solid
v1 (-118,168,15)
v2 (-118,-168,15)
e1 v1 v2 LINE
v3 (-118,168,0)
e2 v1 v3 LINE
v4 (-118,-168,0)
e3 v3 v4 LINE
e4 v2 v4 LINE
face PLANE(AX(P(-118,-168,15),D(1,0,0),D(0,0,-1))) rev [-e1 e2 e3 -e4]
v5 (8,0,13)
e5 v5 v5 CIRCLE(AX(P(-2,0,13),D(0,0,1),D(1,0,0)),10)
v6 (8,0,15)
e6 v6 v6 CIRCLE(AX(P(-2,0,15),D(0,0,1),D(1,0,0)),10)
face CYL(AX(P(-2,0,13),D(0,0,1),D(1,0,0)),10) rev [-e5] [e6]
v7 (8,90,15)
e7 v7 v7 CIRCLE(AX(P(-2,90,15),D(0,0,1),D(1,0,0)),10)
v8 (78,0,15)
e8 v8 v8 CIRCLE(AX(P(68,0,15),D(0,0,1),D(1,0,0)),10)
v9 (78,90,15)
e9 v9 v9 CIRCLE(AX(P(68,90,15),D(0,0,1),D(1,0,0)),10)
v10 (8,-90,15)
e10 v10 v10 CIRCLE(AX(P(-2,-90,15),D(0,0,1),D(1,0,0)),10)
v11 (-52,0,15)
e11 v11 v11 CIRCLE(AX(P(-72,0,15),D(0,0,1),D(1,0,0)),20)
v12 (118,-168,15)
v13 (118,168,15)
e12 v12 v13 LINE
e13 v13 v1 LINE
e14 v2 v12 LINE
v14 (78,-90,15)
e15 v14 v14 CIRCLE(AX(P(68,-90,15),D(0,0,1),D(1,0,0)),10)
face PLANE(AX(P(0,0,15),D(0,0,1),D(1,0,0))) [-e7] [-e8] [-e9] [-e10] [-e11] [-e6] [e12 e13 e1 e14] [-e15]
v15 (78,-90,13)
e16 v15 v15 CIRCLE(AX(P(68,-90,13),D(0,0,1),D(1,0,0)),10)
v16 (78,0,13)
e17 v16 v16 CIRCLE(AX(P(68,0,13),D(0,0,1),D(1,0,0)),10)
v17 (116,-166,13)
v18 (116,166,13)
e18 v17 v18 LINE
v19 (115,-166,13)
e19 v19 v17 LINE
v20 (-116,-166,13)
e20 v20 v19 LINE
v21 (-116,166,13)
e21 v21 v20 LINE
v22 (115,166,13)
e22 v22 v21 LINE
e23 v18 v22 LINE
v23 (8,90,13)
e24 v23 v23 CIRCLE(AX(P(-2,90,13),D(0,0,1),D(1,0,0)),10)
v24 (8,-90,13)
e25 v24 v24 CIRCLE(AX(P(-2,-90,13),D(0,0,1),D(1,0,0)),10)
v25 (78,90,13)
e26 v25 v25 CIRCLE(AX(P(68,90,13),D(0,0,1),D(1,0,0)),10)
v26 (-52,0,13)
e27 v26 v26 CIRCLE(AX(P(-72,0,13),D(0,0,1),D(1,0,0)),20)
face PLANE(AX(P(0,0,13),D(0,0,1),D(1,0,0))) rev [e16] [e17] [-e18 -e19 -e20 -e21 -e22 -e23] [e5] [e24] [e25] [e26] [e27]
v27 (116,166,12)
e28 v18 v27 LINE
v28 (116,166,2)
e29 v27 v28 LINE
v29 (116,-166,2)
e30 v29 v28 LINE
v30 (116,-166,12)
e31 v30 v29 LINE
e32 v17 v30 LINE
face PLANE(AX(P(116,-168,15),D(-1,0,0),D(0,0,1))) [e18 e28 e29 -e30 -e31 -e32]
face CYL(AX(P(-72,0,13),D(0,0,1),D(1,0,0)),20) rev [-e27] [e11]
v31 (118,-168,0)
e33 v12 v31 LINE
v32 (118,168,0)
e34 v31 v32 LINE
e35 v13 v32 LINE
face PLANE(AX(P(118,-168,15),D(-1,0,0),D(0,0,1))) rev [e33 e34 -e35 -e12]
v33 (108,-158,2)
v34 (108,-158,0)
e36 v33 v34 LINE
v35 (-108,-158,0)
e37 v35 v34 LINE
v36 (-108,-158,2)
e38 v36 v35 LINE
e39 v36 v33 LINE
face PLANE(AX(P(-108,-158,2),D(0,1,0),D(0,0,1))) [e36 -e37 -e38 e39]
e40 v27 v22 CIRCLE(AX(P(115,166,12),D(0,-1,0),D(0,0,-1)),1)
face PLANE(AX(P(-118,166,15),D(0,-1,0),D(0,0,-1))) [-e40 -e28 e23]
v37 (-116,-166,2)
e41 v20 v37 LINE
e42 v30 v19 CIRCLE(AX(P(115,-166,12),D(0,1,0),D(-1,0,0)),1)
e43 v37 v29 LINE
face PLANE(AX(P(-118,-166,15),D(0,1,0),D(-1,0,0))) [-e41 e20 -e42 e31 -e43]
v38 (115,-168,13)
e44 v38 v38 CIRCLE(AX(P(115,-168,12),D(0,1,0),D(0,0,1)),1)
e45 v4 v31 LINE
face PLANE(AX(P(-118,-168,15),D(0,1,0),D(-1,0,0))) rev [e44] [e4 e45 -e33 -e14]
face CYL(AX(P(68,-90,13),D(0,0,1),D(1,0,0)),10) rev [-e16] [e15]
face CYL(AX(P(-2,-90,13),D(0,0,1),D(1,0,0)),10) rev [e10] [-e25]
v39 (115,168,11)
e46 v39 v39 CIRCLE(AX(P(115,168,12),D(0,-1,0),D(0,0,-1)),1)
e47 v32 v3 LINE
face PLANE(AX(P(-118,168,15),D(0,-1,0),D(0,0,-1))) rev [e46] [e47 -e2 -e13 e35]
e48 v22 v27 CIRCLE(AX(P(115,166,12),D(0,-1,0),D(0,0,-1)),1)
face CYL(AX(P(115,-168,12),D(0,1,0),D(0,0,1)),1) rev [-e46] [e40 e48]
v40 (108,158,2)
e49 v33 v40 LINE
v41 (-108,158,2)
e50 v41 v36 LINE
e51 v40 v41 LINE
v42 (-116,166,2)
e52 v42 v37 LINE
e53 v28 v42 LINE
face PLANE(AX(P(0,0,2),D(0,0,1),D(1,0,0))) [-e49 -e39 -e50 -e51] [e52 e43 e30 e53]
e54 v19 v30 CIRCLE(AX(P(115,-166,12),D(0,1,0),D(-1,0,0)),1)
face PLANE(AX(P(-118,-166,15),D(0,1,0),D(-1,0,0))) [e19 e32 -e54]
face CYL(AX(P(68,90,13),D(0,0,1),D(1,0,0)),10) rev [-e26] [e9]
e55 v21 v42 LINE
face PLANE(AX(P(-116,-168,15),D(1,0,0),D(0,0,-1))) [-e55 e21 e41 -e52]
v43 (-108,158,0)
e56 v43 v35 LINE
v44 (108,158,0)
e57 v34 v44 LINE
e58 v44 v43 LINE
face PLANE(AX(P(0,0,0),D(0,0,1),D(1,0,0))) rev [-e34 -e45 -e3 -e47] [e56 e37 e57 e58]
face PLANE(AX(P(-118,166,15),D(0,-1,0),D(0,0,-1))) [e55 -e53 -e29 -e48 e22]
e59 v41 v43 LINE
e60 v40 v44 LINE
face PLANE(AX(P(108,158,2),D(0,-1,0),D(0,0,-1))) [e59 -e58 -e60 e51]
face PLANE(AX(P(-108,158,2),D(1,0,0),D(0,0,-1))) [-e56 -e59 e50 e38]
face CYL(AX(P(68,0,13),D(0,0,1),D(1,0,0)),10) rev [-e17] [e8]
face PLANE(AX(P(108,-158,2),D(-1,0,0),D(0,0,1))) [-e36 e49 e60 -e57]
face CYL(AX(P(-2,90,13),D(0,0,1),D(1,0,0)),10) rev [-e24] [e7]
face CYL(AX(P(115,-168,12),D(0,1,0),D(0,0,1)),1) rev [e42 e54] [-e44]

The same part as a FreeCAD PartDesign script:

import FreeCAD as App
import Part
import Sketcher
from FreeCAD import Vector


def faces_at(feature, points):
    """Names of the faces that lie closest to the given points."""
    faces = feature.Shape.Faces
    near = lambda p: min(range(len(faces)), key=lambda i: faces[i].distToShape(Part.Vertex(*p))[0])
    return sorted({f"Face{near(p) + 1}" for p in points})


def add_polygon(sketch, points):
    """Adds a closed chain of lines whose ends are joined by coincident constraints."""
    first, n = sketch.GeometryCount, len(points)
    for a, b in zip(points, points[1:] + points[:1]):
        sketch.addGeometry(Part.LineSegment(App.Vector(*a, 0), App.Vector(*b, 0)), False)
    for i in range(n):
        sketch.addConstraint(Sketcher.Constraint("Coincident", first + i, 2, first + (i + 1) % n, 1))

doc = App.newDocument("Part")
params = doc.addObject("Spreadsheet::Sheet", "Params")
for row, (alias, value) in enumerate([
    ("sketch1_width", "236 mm"),
    ("sketch1_height", "336 mm"),
    ("pad1_length", "15 mm"),
    ("thickness_wall", "2 mm"),
    ("sketch2_width", "232 mm"),
    ("sketch2_width2", "216 mm"),
    ("sketch2_height", "332 mm"),
    ("sketch2_height2", "316 mm"),
    ("pad2_length", "2 mm"),
    ("sketch3_diameter", "2 mm"),
    ("sketch4_diameter", "40 mm"),
    ("sketch4_diameter2", "20 mm"),
    ("pocket2_length", "2 mm"),
], start=1):
    params.set(f"A{row}", alias)
    params.set(f"B{row}", "=" + value)
    params.setAlias(f"B{row}", alias)

body = doc.addObject("PartDesign::Body", "Body")

# Sketch on XY plane
sketch1 = body.newObject("Sketcher::SketchObject", "Sketch")
sketch1.AttachmentSupport = (doc.getObject("XY_Plane"), [""])
sketch1.MapMode = "FlatFace"
add_polygon(sketch1, [(-118, 168), (-118, -168), (118, -168), (118, 168)])  # lines 0-3
sketch1.addConstraint([
    Sketcher.Constraint("Vertical", 0),
    Sketcher.Constraint("Horizontal", 1),
    Sketcher.Constraint("Vertical", 2),
    Sketcher.Constraint("Horizontal", 3),
    Sketcher.Constraint("Symmetric", 0, 2, 2, 2, -1, 1),
    Sketcher.Constraint("DistanceX", 1, 1, 1, 2, 236.0),
    Sketcher.Constraint("DistanceY", 0, 2, 0, 1, 336.0),
])
sketch1.setExpression("Constraints[9]", "Params.sketch1_width")
sketch1.setExpression("Constraints[10]", "Params.sketch1_height")
pad1 = body.newObject("PartDesign::Pad", "Pad")
pad1.Profile = sketch1
pad1.setExpression("Length", "Params.pad1_length")
doc.recompute()

thickness = body.newObject("PartDesign::Thickness", "Thickness")
thickness.Base = (pad1, faces_at(pad1, [(0, 0, 0)]))
thickness.setExpression("Value", "Params.thickness_wall")
thickness.Reversed = True
thickness.Join = "Intersection"

# Sketch on XY plane
sketch2 = body.newObject("Sketcher::SketchObject", "Sketch001")
sketch2.AttachmentSupport = (doc.getObject("XY_Plane"), [""])
sketch2.MapMode = "FlatFace"
add_polygon(sketch2, [(-116, 166), (-116, -166), (116, -166), (116, 166)])  # lines 0-3
add_polygon(sketch2, [(108, -158), (-108, -158), (-108, 158), (108, 158)])  # lines 4-7
sketch2.addConstraint([
    Sketcher.Constraint("Vertical", 0),
    Sketcher.Constraint("Horizontal", 1),
    Sketcher.Constraint("Vertical", 2),
    Sketcher.Constraint("Horizontal", 3),
    Sketcher.Constraint("Horizontal", 4),
    Sketcher.Constraint("Vertical", 5),
    Sketcher.Constraint("Horizontal", 6),
    Sketcher.Constraint("Vertical", 7),
    Sketcher.Constraint("Symmetric", 0, 2, 2, 2, -1, 1),
    Sketcher.Constraint("Symmetric", 4, 2, 6, 2, -1, 1),
    Sketcher.Constraint("DistanceX", 1, 1, 1, 2, 232.0),
    Sketcher.Constraint("DistanceX", 4, 2, 4, 1, 216.0),
    Sketcher.Constraint("DistanceY", 0, 2, 0, 1, 332.0),
    Sketcher.Constraint("DistanceY", 5, 1, 5, 2, 316.0),
])
sketch2.setExpression("Constraints[18]", "Params.sketch2_width")
sketch2.setExpression("Constraints[19]", "Params.sketch2_width2")
sketch2.setExpression("Constraints[20]", "Params.sketch2_height")
sketch2.setExpression("Constraints[21]", "Params.sketch2_height2")
pad2 = body.newObject("PartDesign::Pad", "Pad001")
pad2.Profile = sketch2
pad2.setExpression("Length", "Params.pad2_length")

# Sketch on XZ plane
sketch3 = body.newObject("Sketcher::SketchObject", "Sketch002")
sketch3.AttachmentSupport = (doc.getObject("XZ_Plane"), [""])
sketch3.MapMode = "FlatFace"
sketch3.AttachmentOffset = App.Placement(Vector(0, 0, -168), App.Rotation())
sketch3.addGeometry(Part.Circle(Vector(115, 12, 0), Vector(0, 0, 1), 1), False)
sketch3.addConstraint([
    Sketcher.Constraint("Diameter", 0, 2.0),
    Sketcher.Constraint("DistanceX", -1, 1, 0, 3, 115.0),
    Sketcher.Constraint("DistanceY", -1, 1, 0, 3, 12.0),
])
sketch3.setExpression("Constraints[0]", "Params.sketch3_diameter")
pocket1 = body.newObject("PartDesign::Pocket", "Pocket")
pocket1.Profile = sketch3
pocket1.Type = "ThroughAll"
pocket1.Midplane = True

# Sketch on XY plane
sketch4 = body.newObject("Sketcher::SketchObject", "Sketch003")
sketch4.AttachmentSupport = (doc.getObject("XY_Plane"), [""])
sketch4.MapMode = "FlatFace"
sketch4.AttachmentOffset = App.Placement(Vector(0, 0, 15), App.Rotation())
sketch4.addGeometry([
    Part.Circle(Vector(-72, 0, 0), Vector(0, 0, 1), 20),  # 0
    Part.Circle(Vector(-2, 0, 0), Vector(0, 0, 1), 10),  # 1
    Part.Circle(Vector(68, 0, 0), Vector(0, 0, 1), 10),  # 2
    Part.Circle(Vector(68, 90, 0), Vector(0, 0, 1), 10),  # 3
    Part.Circle(Vector(-2, 90, 0), Vector(0, 0, 1), 10),  # 4
    Part.Circle(Vector(68, -90, 0), Vector(0, 0, 1), 10),  # 5
    Part.Circle(Vector(-2, -90, 0), Vector(0, 0, 1), 10),  # 6
], False)
sketch4.addConstraint([
    Sketcher.Constraint("Equal", 1, 2),
    Sketcher.Constraint("Equal", 2, 3),
    Sketcher.Constraint("Equal", 3, 4),
    Sketcher.Constraint("Equal", 4, 5),
    Sketcher.Constraint("Equal", 5, 6),
    Sketcher.Constraint("Symmetric", 3, 3, 5, 3, -1),
    Sketcher.Constraint("Symmetric", 4, 3, 6, 3, -1),
    Sketcher.Constraint("PointOnObject", 0, 3, -1),
    Sketcher.Constraint("PointOnObject", 1, 3, -1),
    Sketcher.Constraint("PointOnObject", 2, 3, -1),
    Sketcher.Constraint("Horizontal", 3, 3, 4, 3),
    Sketcher.Constraint("Vertical", 2, 3, 3, 3),
    Sketcher.Constraint("Vertical", 1, 3, 4, 3),
    Sketcher.Constraint("Diameter", 0, 40.0),
    Sketcher.Constraint("Diameter", 1, 20.0),
    Sketcher.Constraint("DistanceX", 0, 3, -1, 1, 72.0),
    Sketcher.Constraint("DistanceX", 1, 3, -1, 1, 2.0),
    Sketcher.Constraint("DistanceX", -1, 1, 2, 3, 68.0),
    Sketcher.Constraint("DistanceY", -1, 1, 3, 3, 90.0),
])
sketch4.setExpression("Constraints[13]", "Params.sketch4_diameter")
sketch4.setExpression("Constraints[14]", "Params.sketch4_diameter2")
pocket2 = body.newObject("PartDesign::Pocket", "Pocket001")
pocket2.Profile = sketch4
pocket2.setExpression("Length", "Params.pocket2_length")

doc.recompute()
